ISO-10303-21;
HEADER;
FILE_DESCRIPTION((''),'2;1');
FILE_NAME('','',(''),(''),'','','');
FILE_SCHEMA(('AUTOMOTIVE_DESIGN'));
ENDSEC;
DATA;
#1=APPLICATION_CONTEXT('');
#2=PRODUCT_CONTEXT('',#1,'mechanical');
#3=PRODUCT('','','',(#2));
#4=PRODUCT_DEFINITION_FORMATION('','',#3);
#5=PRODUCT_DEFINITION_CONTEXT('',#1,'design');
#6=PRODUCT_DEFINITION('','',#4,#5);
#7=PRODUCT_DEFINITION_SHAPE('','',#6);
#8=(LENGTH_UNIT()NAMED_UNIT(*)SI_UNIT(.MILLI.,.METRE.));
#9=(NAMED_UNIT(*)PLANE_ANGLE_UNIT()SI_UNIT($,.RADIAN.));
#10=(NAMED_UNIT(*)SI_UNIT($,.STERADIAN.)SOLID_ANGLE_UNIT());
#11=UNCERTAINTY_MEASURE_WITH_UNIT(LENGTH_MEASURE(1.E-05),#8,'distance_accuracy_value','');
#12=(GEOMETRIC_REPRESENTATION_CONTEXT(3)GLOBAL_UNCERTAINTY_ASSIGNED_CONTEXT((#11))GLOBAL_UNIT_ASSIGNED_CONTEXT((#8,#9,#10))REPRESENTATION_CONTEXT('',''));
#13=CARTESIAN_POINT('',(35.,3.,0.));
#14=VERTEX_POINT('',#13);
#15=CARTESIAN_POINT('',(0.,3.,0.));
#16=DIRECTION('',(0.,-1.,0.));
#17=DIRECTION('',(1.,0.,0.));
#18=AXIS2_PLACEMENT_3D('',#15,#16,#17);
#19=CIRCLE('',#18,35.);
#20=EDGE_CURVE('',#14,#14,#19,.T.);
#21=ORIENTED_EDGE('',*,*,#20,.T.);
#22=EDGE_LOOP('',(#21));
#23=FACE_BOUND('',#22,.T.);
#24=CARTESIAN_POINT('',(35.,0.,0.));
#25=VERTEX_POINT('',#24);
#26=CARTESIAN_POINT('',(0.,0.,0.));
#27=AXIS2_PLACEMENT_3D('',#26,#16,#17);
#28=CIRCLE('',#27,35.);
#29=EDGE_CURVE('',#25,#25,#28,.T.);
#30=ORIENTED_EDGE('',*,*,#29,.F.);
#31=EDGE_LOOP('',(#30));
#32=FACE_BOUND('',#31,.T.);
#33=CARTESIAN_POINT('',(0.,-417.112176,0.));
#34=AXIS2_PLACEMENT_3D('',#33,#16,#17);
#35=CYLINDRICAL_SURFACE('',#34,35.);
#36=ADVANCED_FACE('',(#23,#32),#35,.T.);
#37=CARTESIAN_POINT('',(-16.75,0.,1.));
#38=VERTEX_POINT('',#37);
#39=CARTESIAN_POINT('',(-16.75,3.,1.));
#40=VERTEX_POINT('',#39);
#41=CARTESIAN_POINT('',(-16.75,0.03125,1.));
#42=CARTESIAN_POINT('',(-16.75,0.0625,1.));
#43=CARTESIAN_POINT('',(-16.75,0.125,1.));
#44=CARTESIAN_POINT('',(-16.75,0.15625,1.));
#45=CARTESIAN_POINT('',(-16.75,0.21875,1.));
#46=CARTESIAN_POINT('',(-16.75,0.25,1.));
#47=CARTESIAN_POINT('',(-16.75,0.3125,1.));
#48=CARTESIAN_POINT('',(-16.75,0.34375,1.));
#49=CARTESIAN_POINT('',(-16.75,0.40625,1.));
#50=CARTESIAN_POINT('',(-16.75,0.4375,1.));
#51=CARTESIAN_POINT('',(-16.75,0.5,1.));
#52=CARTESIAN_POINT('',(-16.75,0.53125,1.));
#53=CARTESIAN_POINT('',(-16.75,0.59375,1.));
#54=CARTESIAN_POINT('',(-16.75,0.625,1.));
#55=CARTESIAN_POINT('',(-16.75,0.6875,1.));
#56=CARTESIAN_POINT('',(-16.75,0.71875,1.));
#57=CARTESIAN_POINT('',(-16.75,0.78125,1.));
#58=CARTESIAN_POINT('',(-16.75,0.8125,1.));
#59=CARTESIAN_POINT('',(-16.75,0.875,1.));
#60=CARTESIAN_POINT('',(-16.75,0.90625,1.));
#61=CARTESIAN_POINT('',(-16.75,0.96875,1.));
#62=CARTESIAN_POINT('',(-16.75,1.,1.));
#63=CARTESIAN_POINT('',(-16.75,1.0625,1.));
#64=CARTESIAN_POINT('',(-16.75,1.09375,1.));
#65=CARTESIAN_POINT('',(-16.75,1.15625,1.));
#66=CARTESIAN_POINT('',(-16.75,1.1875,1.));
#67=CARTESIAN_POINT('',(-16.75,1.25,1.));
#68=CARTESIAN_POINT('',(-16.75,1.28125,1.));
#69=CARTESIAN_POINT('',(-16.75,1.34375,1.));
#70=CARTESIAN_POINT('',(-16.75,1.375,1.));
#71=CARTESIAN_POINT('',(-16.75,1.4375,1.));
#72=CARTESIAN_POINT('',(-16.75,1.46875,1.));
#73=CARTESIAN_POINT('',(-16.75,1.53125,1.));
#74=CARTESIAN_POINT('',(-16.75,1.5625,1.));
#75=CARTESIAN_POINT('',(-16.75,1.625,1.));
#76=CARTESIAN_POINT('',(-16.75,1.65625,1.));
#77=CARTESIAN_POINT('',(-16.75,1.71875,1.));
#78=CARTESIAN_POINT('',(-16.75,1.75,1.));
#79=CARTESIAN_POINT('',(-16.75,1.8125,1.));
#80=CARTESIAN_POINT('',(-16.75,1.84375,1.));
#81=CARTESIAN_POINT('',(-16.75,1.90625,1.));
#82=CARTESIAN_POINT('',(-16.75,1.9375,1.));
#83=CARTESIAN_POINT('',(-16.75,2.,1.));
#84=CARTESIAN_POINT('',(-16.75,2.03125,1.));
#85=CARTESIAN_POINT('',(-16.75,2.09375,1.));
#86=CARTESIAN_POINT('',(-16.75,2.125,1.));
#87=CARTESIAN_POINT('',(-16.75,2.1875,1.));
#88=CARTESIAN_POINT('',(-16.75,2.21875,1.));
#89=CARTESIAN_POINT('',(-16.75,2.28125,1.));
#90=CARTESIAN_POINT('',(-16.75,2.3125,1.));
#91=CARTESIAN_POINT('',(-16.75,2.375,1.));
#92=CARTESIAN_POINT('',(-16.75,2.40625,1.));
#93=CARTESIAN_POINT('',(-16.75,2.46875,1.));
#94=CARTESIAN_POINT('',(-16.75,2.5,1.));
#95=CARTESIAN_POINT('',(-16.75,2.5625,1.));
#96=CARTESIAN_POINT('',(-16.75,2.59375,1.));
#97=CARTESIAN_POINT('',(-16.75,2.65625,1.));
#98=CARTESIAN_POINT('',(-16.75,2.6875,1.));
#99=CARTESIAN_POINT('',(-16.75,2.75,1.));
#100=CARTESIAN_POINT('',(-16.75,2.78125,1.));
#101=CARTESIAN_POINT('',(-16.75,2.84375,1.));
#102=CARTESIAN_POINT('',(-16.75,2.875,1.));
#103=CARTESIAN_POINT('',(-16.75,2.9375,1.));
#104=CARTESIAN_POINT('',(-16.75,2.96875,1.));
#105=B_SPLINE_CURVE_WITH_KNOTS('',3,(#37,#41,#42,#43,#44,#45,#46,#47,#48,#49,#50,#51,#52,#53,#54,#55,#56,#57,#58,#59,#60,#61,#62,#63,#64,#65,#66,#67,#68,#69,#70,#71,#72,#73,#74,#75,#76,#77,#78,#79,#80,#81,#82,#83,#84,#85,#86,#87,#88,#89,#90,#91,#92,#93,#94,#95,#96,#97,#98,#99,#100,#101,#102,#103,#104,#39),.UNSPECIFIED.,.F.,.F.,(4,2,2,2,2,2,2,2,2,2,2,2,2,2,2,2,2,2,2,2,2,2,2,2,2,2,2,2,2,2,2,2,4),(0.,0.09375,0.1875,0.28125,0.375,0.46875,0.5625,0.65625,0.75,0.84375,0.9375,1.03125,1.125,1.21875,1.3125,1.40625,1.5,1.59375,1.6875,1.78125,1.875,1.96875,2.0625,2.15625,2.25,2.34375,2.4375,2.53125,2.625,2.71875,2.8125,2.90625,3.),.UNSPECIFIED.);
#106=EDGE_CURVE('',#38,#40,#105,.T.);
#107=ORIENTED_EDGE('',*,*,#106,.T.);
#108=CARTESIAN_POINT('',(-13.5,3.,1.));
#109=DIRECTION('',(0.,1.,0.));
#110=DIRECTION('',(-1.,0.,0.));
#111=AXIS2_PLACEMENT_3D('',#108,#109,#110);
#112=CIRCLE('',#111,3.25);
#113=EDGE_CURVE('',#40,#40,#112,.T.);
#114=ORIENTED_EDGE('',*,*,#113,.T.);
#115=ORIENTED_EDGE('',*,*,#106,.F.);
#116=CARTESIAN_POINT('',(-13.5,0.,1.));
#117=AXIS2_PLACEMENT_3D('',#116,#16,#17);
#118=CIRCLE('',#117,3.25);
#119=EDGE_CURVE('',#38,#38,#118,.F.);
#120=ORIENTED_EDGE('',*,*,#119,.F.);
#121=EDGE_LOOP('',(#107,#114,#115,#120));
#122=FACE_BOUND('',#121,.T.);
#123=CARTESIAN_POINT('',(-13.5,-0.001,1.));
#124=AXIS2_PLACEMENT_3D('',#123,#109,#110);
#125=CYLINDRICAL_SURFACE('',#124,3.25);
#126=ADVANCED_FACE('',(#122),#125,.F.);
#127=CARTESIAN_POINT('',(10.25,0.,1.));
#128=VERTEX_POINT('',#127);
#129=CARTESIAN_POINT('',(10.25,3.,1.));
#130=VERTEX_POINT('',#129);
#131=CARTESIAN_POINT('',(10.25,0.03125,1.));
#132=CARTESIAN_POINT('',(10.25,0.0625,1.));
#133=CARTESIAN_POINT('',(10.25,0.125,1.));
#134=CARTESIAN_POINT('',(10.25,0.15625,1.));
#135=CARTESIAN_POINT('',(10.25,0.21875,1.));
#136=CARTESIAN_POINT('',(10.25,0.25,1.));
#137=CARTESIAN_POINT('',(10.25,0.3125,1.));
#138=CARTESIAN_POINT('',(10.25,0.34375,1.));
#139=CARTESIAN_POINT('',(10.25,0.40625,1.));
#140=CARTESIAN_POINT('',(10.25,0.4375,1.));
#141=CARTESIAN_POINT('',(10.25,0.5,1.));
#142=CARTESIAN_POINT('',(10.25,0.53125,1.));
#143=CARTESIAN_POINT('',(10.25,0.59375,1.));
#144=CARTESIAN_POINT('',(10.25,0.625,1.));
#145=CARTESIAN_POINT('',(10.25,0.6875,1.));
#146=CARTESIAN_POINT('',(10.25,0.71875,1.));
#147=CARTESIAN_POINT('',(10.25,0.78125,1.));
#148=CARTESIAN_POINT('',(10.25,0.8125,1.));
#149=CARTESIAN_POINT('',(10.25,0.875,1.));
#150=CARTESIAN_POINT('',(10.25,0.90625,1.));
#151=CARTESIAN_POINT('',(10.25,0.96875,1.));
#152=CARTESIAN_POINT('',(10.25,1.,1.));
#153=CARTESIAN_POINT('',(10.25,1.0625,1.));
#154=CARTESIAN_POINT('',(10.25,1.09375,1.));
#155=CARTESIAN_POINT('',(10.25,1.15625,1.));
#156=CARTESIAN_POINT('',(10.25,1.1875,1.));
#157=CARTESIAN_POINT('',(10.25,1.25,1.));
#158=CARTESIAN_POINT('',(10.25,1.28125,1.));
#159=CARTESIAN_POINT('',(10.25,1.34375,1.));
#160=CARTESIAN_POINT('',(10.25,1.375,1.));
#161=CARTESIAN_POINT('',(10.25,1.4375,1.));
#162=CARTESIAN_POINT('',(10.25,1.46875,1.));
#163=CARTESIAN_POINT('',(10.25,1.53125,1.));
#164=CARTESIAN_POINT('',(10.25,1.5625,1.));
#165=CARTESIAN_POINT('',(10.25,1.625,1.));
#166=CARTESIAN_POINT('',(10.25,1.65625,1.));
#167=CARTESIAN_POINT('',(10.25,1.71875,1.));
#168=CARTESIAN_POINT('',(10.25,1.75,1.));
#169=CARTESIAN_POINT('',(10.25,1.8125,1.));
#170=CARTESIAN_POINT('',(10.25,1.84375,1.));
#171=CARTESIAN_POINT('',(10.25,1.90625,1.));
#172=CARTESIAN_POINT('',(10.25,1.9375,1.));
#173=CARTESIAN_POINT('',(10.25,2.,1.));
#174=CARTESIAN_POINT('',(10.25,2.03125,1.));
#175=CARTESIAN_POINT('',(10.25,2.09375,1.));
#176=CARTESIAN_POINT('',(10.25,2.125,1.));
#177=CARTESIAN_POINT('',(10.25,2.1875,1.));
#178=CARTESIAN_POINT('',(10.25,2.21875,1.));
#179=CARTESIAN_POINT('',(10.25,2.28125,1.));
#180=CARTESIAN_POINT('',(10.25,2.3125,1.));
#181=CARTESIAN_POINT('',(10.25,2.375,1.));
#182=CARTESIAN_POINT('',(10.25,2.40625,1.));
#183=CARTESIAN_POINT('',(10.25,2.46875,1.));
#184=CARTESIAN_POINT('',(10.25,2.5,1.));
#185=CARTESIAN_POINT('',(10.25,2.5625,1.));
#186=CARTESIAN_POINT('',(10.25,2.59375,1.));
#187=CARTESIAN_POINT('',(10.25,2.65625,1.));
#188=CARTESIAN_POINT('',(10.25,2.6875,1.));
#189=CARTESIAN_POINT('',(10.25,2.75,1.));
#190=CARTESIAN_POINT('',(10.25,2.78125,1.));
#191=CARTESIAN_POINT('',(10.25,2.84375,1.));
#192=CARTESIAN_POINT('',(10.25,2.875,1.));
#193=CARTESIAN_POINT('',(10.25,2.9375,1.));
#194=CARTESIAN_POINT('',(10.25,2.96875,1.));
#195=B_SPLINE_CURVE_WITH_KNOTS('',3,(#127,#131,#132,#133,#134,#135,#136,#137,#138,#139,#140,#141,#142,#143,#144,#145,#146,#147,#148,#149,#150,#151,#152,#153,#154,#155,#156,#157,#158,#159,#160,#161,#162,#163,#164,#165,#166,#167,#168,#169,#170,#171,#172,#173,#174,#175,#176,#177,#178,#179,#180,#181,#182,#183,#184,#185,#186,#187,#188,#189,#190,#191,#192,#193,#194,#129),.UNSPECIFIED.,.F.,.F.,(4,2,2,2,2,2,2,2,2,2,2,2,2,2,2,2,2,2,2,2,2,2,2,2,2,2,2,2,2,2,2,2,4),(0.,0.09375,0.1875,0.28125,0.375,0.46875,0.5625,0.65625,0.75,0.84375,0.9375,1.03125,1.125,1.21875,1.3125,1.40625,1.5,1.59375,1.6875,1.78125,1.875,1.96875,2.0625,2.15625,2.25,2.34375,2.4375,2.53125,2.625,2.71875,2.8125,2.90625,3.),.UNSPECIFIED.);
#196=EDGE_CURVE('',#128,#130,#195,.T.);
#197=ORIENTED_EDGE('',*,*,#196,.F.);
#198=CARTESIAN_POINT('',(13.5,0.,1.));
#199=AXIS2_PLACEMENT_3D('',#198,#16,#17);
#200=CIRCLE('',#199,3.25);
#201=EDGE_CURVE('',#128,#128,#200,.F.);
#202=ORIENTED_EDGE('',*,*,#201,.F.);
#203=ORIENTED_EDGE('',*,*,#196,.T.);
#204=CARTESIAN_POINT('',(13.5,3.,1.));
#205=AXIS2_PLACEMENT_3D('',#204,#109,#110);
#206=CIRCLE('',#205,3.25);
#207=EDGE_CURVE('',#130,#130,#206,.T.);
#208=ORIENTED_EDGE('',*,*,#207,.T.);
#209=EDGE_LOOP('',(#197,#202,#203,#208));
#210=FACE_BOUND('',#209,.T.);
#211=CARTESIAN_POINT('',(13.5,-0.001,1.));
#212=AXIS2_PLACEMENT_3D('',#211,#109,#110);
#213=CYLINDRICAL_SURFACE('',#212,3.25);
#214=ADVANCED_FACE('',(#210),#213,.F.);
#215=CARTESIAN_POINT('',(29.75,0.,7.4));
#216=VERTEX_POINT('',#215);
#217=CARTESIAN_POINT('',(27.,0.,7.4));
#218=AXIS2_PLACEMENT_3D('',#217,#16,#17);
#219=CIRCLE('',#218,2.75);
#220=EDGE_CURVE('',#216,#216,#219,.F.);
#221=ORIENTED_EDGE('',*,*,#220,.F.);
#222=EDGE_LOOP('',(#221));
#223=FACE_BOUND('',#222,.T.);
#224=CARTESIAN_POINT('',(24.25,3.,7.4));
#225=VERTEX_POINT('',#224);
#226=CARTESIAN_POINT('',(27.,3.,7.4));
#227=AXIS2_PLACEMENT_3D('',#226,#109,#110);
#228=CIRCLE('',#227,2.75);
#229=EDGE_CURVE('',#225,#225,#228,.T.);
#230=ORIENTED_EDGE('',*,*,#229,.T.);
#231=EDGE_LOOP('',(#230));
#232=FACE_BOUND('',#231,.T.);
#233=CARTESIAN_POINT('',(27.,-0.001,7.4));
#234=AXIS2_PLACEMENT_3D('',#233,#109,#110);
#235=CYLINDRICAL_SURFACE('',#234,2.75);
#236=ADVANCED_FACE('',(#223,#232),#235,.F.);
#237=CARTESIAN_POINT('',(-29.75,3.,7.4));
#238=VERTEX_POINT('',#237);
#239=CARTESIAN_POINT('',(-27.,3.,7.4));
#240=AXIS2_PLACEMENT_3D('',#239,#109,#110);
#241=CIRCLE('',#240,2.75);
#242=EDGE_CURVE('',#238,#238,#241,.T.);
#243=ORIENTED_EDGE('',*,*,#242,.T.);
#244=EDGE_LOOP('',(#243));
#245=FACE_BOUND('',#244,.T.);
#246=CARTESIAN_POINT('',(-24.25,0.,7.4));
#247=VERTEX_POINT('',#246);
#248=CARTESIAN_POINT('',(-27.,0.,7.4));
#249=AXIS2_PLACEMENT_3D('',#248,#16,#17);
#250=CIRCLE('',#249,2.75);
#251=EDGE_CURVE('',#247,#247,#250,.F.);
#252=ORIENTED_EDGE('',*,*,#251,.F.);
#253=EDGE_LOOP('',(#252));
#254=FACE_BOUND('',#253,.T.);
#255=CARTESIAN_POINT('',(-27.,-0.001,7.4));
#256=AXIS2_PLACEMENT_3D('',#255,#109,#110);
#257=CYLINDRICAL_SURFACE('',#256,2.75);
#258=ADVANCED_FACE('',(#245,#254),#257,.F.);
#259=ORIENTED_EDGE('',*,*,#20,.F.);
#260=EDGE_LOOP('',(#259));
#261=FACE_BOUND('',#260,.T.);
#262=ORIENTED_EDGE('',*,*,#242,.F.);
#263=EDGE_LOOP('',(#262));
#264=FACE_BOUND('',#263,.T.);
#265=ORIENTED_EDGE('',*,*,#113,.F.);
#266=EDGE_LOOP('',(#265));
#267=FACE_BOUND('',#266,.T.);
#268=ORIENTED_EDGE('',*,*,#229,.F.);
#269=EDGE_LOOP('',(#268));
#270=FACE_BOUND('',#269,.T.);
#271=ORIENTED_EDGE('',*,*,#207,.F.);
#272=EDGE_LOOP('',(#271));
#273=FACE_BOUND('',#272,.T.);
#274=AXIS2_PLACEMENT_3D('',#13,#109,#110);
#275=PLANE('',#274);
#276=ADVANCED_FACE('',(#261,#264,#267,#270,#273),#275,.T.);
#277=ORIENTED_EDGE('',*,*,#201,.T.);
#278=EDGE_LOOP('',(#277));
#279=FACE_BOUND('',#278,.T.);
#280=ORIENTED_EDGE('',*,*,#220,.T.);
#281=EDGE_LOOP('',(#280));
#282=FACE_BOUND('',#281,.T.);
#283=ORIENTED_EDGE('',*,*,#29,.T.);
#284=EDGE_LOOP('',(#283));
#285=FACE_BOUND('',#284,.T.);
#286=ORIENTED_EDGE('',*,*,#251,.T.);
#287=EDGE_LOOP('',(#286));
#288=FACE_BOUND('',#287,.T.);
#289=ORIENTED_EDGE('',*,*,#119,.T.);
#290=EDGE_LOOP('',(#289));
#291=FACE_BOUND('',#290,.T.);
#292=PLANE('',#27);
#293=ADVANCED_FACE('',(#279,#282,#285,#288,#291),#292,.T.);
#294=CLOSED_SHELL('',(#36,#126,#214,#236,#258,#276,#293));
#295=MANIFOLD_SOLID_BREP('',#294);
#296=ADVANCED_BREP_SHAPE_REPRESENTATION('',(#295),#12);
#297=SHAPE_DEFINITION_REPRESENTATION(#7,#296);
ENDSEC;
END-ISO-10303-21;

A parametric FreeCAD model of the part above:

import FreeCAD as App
import Part
import Sketcher
from FreeCAD import Vector
Q = App.Units.Quantity

doc = App.newDocument("Part")
params = doc.addObject("Spreadsheet::Sheet", "Params")
for row, (alias, value) in enumerate([
    ("sketch1_width", "35 mm"),
    ("sketch1_height", "3 mm"),
    ("revolution_angle", "360 deg"),
    ("sketch2_diameter", "6.5 mm"),
    ("sketch3_diameter", "6.5 mm"),
    ("sketch4_diameter", "5.5 mm"),
    ("sketch5_diameter", "5.5 mm"),
], start=1):
    params.set(f"A{row}", alias)
    params.set(f"B{row}", "=" + value)
    params.setAlias(f"B{row}", alias)

body = doc.addObject("PartDesign::Body", "Body")

# Sketch on XY plane
sketch1 = doc.addObject("Sketcher::SketchObject", "Sketch")
body.addObject(sketch1)
sketch1.AttachmentSupport = (doc.XY_Plane, [""])
sketch1.MapMode = "FlatFace"
sketch1.addGeometry([
    Part.LineSegment(Vector(0, 3, 0), Vector(0, 0, 0)),
    Part.LineSegment(Vector(0, 0, 0), Vector(35, 0, 0)),
    Part.LineSegment(Vector(35, 0, 0), Vector(35, 3, 0)),
    Part.LineSegment(Vector(35, 3, 0), Vector(0, 3, 0)),
], False)
sketch1.addConstraint([
    Sketcher.Constraint("Coincident", 0, 2, 1, 1),
    Sketcher.Constraint("Coincident", 1, 2, 2, 1),
    Sketcher.Constraint("Coincident", 2, 2, 3, 1),
    Sketcher.Constraint("Coincident", 3, 2, 0, 1),
    Sketcher.Constraint("Vertical", 0),
    Sketcher.Constraint("Horizontal", 1),
    Sketcher.Constraint("Vertical", 2),
    Sketcher.Constraint("Horizontal", 3),
    Sketcher.Constraint("Coincident", 0, 2, -1, 1),
    Sketcher.Constraint("DistanceX", 1, 1, 1, 2, Q("35 mm")),
    Sketcher.Constraint("DistanceY", 0, 2, 0, 1, Q("3 mm")),
])
sketch1.setExpression("Constraints[9]", "Params.sketch1_width")
sketch1.setExpression("Constraints[10]", "Params.sketch1_height")
revolution = doc.addObject("PartDesign::Revolution", "Revolution")
body.addObject(revolution)
revolution.Profile = sketch1
revolution.ReferenceAxis = (sketch1, ["V_Axis"])
revolution.setExpression("Angle", "Params.revolution_angle")

# Sketch on XZ plane
sketch2 = doc.addObject("Sketcher::SketchObject", "Sketch001")
body.addObject(sketch2)
sketch2.AttachmentSupport = (doc.XZ_Plane, [""])
sketch2.MapMode = "FlatFace"
sketch2.AttachmentOffset = App.Placement(Vector(0, 0, -3), App.Rotation())
sketch2.addGeometry(Part.Circle(Vector(-13.5, 1, 0), Vector(0, 0, 1), 3.2), False)
sketch2.addConstraint([
    Sketcher.Constraint("Diameter", 0, Q("6.5 mm")),
    Sketcher.Constraint("DistanceY", -1, 1, 0, 3, Q("1 mm")),
    Sketcher.Constraint("DistanceX", 0, 3, -1, 1, Q("13.5 mm")),
])
sketch2.setExpression("Constraints[0]", "Params.sketch2_diameter")
pocket1 = doc.addObject("PartDesign::Pocket", "Pocket")
body.addObject(pocket1)
pocket1.Profile = sketch2
pocket1.Type = "UpToFirst"
pocket1.Reversed = True

# Sketch on XZ plane
sketch3 = doc.addObject("Sketcher::SketchObject", "Sketch002")
body.addObject(sketch3)
sketch3.AttachmentSupport = (doc.XZ_Plane, [""])
sketch3.MapMode = "FlatFace"
sketch3.AttachmentOffset = App.Placement(Vector(0, 0, -3), App.Rotation())
sketch3.addGeometry(Part.Circle(Vector(13.5, 1, 0), Vector(0, 0, 1), 3.2), False)
sketch3.addConstraint([
    Sketcher.Constraint("Diameter", 0, Q("6.5 mm")),
    Sketcher.Constraint("DistanceY", -1, 1, 0, 3, Q("1 mm")),
    Sketcher.Constraint("DistanceX", -1, 1, 0, 3, Q("13.5 mm")),
])
sketch3.setExpression("Constraints[0]", "Params.sketch3_diameter")
pocket2 = doc.addObject("PartDesign::Pocket", "Pocket001")
body.addObject(pocket2)
pocket2.Profile = sketch3
pocket2.Type = "UpToFirst"
pocket2.Reversed = True

# Sketch on XZ plane
sketch4 = doc.addObject("Sketcher::SketchObject", "Sketch003")
body.addObject(sketch4)
sketch4.AttachmentSupport = (doc.XZ_Plane, [""])
sketch4.MapMode = "FlatFace"
sketch4.AttachmentOffset = App.Placement(Vector(0, 0, -3), App.Rotation())
sketch4.addGeometry(Part.Circle(Vector(-27, 7.4, 0), Vector(0, 0, 1), 2.8), False)
sketch4.addConstraint([
    Sketcher.Constraint("Diameter", 0, Q("5.5 mm")),
    Sketcher.Constraint("DistanceX", 0, 3, -1, 1, Q("27 mm")),
    Sketcher.Constraint("DistanceY", -1, 1, 0, 3, Q("7.4 mm")),
])
sketch4.setExpression("Constraints[0]", "Params.sketch4_diameter")
pocket3 = doc.addObject("PartDesign::Pocket", "Pocket002")
body.addObject(pocket3)
pocket3.Profile = sketch4
pocket3.Type = "UpToFirst"
pocket3.Reversed = True

# Sketch on XZ plane
sketch5 = doc.addObject("Sketcher::SketchObject", "Sketch004")
body.addObject(sketch5)
sketch5.AttachmentSupport = (doc.XZ_Plane, [""])
sketch5.MapMode = "FlatFace"
sketch5.AttachmentOffset = App.Placement(Vector(0, 0, -3), App.Rotation())
sketch5.addGeometry(Part.Circle(Vector(27, 7.4, 0), Vector(0, 0, 1), 2.8), False)
sketch5.addConstraint([
    Sketcher.Constraint("Diameter", 0, Q("5.5 mm")),
    Sketcher.Constraint("DistanceX", -1, 1, 0, 3, Q("27 mm")),
    Sketcher.Constraint("DistanceY", -1, 1, 0, 3, Q("7.4 mm")),
])
sketch5.setExpression("Constraints[0]", "Params.sketch5_diameter")
pocket4 = doc.addObject("PartDesign::Pocket", "Pocket003")
body.addObject(pocket4)
pocket4.Profile = sketch5
pocket4.Type = "UpToFirst"
pocket4.Reversed = True

doc.recompute()
